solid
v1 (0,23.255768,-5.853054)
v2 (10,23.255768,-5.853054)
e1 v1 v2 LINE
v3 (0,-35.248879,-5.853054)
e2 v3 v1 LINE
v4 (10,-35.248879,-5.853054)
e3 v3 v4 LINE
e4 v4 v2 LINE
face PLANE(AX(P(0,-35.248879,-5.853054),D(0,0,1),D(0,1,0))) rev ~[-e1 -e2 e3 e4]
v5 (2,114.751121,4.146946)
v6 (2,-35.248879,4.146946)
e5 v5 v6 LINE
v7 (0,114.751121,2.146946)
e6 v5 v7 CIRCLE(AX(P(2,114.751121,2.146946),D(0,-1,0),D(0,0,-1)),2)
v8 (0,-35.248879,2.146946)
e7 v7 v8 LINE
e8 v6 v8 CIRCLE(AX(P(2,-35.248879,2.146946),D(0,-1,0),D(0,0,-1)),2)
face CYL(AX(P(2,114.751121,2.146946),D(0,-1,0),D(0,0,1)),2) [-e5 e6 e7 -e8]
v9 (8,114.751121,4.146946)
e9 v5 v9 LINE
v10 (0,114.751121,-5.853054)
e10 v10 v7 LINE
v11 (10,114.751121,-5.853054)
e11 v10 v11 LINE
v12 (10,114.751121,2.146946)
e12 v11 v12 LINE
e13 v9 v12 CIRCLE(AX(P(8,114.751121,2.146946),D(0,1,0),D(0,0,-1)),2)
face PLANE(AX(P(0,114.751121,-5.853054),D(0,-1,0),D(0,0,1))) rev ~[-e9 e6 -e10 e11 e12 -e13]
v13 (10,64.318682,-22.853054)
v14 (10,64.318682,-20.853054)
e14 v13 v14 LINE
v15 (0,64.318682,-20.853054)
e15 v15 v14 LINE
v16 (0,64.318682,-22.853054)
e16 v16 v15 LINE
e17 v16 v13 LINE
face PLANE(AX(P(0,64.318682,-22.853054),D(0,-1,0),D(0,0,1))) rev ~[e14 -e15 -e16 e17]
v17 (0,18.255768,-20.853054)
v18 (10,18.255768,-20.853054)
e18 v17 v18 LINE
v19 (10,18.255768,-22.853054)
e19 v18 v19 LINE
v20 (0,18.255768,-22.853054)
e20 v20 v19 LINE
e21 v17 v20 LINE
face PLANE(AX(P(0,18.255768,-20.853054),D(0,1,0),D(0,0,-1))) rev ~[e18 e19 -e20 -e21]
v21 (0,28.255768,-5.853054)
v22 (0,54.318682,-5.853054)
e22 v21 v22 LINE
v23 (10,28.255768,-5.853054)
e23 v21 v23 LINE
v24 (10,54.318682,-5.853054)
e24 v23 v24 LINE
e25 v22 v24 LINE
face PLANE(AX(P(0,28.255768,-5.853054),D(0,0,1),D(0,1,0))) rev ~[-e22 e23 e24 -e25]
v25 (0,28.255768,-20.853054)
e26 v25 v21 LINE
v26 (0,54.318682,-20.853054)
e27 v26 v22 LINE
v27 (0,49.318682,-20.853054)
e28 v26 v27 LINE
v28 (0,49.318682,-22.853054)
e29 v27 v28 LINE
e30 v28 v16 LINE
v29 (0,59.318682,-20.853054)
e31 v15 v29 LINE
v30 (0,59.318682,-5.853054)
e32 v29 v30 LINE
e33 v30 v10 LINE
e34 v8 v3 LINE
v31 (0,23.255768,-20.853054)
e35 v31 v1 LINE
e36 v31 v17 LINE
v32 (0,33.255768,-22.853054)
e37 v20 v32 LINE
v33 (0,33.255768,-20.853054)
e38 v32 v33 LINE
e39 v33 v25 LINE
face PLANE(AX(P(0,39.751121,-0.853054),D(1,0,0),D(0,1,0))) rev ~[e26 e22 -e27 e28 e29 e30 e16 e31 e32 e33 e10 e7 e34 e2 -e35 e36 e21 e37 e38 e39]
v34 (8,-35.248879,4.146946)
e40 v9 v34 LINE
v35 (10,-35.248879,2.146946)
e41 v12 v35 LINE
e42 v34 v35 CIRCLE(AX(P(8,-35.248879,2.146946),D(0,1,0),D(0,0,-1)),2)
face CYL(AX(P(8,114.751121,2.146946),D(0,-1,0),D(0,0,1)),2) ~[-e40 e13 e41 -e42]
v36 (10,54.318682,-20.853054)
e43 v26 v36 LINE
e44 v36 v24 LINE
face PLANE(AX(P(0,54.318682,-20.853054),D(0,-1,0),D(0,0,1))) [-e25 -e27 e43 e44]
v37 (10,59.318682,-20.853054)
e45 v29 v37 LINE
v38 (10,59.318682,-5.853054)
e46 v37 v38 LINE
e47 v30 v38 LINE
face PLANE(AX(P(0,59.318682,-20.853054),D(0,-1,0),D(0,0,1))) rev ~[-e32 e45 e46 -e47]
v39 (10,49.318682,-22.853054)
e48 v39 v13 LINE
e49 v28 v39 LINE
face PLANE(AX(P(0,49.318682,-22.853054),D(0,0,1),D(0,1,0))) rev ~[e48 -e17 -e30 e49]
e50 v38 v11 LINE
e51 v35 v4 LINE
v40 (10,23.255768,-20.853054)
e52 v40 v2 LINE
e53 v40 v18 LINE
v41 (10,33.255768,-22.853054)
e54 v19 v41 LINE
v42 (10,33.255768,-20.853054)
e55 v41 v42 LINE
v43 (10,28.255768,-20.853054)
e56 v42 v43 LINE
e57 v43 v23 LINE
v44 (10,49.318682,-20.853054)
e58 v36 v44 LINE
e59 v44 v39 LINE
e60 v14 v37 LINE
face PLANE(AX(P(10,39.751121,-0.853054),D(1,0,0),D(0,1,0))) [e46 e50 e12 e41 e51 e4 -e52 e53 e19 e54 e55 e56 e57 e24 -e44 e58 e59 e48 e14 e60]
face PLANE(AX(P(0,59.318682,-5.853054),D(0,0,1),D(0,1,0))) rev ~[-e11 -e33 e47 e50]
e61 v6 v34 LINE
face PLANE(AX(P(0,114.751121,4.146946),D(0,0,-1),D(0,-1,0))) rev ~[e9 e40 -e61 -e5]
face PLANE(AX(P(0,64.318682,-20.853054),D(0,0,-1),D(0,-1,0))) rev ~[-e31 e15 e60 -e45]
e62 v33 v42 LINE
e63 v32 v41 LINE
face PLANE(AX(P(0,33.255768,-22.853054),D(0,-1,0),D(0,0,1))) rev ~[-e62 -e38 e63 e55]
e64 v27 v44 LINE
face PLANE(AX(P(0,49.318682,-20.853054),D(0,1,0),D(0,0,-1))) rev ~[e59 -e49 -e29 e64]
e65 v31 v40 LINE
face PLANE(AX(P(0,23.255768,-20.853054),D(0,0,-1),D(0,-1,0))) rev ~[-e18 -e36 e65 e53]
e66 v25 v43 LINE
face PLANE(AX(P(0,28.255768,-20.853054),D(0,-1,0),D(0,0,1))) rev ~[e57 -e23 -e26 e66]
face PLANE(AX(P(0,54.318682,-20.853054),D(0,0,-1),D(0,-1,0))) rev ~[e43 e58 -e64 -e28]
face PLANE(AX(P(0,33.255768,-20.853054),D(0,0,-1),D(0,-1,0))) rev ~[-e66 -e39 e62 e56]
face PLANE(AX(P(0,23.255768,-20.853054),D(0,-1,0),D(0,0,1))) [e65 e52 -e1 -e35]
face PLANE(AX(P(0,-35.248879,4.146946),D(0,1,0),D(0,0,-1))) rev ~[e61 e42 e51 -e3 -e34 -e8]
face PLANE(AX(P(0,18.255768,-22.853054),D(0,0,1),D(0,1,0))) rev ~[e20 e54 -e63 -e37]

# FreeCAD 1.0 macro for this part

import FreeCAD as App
import Part
import Sketcher
from FreeCAD import Vector


def edges_at(feature, points):
    """Names of the edges that pass closest to the given points."""
    edges = feature.Shape.Edges
    near = lambda p: min(range(len(edges)), key=lambda i: edges[i].distToShape(Part.Vertex(*p))[0])
    return sorted({f"Edge{near(p) + 1}" for p in points})

doc = App.newDocument("Part")
body = doc.addObject("PartDesign::Body", "Body")

# Sketch on YZ plane
sketch1 = body.newObject("Sketcher::SketchObject", "Sketch")
sketch1.AttachmentSupport = (doc.getObject("YZ_Plane"), [""])
sketch1.MapMode = "FlatFace"
sketch1.addGeometry(Part.LineSegment(Vector(114.8, -5.9, 0), Vector(114.8, 4.1, 0)), False)
sketch1.addGeometry(Part.LineSegment(Vector(114.8, 4.1, 0), Vector(-35.2, 4.1, 0)), False)
sketch1.addGeometry(Part.LineSegment(Vector(-35.2, 4.1, 0), Vector(-35.2, -5.9, 0)), False)
sketch1.addGeometry(Part.LineSegment(Vector(-35.2, -5.9, 0), Vector(23.3, -5.9, 0)), False)
sketch1.addGeometry(Part.LineSegment(Vector(23.3, -5.9, 0), Vector(23.3, -20.9, 0)), False)
sketch1.addGeometry(Part.LineSegment(Vector(23.3, -20.9, 0), Vector(18.3, -20.9, 0)), False)
sketch1.addGeometry(Part.LineSegment(Vector(18.3, -20.9, 0), Vector(18.3, -22.9, 0)), False)
sketch1.addGeometry(Part.LineSegment(Vector(18.3, -22.9, 0), Vector(33.3, -22.9, 0)), False)
sketch1.addGeometry(Part.LineSegment(Vector(33.3, -22.9, 0), Vector(33.3, -20.9, 0)), False)
sketch1.addGeometry(Part.LineSegment(Vector(33.3, -20.9, 0), Vector(28.3, -20.9, 0)), False)
sketch1.addGeometry(Part.LineSegment(Vector(28.3, -20.9, 0), Vector(28.3, -5.9, 0)), False)
sketch1.addGeometry(Part.LineSegment(Vector(28.3, -5.9, 0), Vector(54.3, -5.9, 0)), False)
sketch1.addGeometry(Part.LineSegment(Vector(54.3, -5.9, 0), Vector(54.3, -20.9, 0)), False)
sketch1.addGeometry(Part.LineSegment(Vector(54.3, -20.9, 0), Vector(49.3, -20.9, 0)), False)
sketch1.addGeometry(Part.LineSegment(Vector(49.3, -20.9, 0), Vector(49.3, -22.9, 0)), False)
sketch1.addGeometry(Part.LineSegment(Vector(49.3, -22.9, 0), Vector(64.3, -22.9, 0)), False)
sketch1.addGeometry(Part.LineSegment(Vector(64.3, -22.9, 0), Vector(64.3, -20.9, 0)), False)
sketch1.addGeometry(Part.LineSegment(Vector(64.3, -20.9, 0), Vector(59.3, -20.9, 0)), False)
sketch1.addGeometry(Part.LineSegment(Vector(59.3, -20.9, 0), Vector(59.3, -5.9, 0)), False)
sketch1.addGeometry(Part.LineSegment(Vector(59.3, -5.9, 0), Vector(114.8, -5.9, 0)), False)
sketch1.addConstraint(Sketcher.Constraint("Coincident", 0, 2, 1, 1))
sketch1.addConstraint(Sketcher.Constraint("Coincident", 1, 2, 2, 1))
sketch1.addConstraint(Sketcher.Constraint("Coincident", 2, 2, 3, 1))
sketch1.addConstraint(Sketcher.Constraint("Coincident", 3, 2, 4, 1))
sketch1.addConstraint(Sketcher.Constraint("Coincident", 4, 2, 5, 1))
sketch1.addConstraint(Sketcher.Constraint("Coincident", 5, 2, 6, 1))
sketch1.addConstraint(Sketcher.Constraint("Coincident", 6, 2, 7, 1))
sketch1.addConstraint(Sketcher.Constraint("Coincident", 7, 2, 8, 1))
sketch1.addConstraint(Sketcher.Constraint("Coincident", 8, 2, 9, 1))
sketch1.addConstraint(Sketcher.Constraint("Coincident", 9, 2, 10, 1))
sketch1.addConstraint(Sketcher.Constraint("Coincident", 10, 2, 11, 1))
sketch1.addConstraint(Sketcher.Constraint("Coincident", 11, 2, 12, 1))
sketch1.addConstraint(Sketcher.Constraint("Coincident", 12, 2, 13, 1))
sketch1.addConstraint(Sketcher.Constraint("Coincident", 13, 2, 14, 1))
sketch1.addConstraint(Sketcher.Constraint("Coincident", 14, 2, 15, 1))
sketch1.addConstraint(Sketcher.Constraint("Coincident", 15, 2, 16, 1))
sketch1.addConstraint(Sketcher.Constraint("Coincident", 16, 2, 17, 1))
sketch1.addConstraint(Sketcher.Constraint("Coincident", 17, 2, 18, 1))
sketch1.addConstraint(Sketcher.Constraint("Coincident", 18, 2, 19, 1))
sketch1.addConstraint(Sketcher.Constraint("Coincident", 19, 2, 0, 1))
sketch1.addConstraint(Sketcher.Constraint("Vertical", 0))
sketch1.addConstraint(Sketcher.Constraint("Horizontal", 1))
sketch1.addConstraint(Sketcher.Constraint("Vertical", 2))
sketch1.addConstraint(Sketcher.Constraint("Horizontal", 3))
sketch1.addConstraint(Sketcher.Constraint("Vertical", 4))
sketch1.addConstraint(Sketcher.Constraint("Horizontal", 5))
sketch1.addConstraint(Sketcher.Constraint("Vertical", 6))
sketch1.addConstraint(Sketcher.Constraint("Horizontal", 7))
sketch1.addConstraint(Sketcher.Constraint("Vertical", 8))
sketch1.addConstraint(Sketcher.Constraint("Horizontal", 9))
sketch1.addConstraint(Sketcher.Constraint("Vertical", 10))
sketch1.addConstraint(Sketcher.Constraint("Horizontal", 11))
sketch1.addConstraint(Sketcher.Constraint("Vertical", 12))
sketch1.addConstraint(Sketcher.Constraint("Horizontal", 13))
sketch1.addConstraint(Sketcher.Constraint("Vertical", 14))
sketch1.addConstraint(Sketcher.Constraint("Horizontal", 15))
sketch1.addConstraint(Sketcher.Constraint("Vertical", 16))
sketch1.addConstraint(Sketcher.Constraint("Horizontal", 17))
sketch1.addConstraint(Sketcher.Constraint("Vertical", 18))
sketch1.addConstraint(Sketcher.Constraint("Horizontal", 19))
sketch1.addConstraint(Sketcher.Constraint("Horizontal", 5, 2, 8, 2))
sketch1.addConstraint(Sketcher.Constraint("Horizontal", 3, 2, 10, 2))
sketch1.addConstraint(Sketcher.Constraint("Horizontal", 9, 2, 12, 2))
sketch1.addConstraint(Sketcher.Constraint("Horizontal", 7, 2, 14, 2))
sketch1.addConstraint(Sketcher.Constraint("Horizontal", 13, 2, 16, 2))
sketch1.addConstraint(Sketcher.Constraint("Horizontal", 11, 2, 18, 2))
sketch1.addConstraint(Sketcher.Constraint("Equal", 5, 9))
sketch1.addConstraint(Sketcher.Constraint("Equal", 9, 13))
sketch1.addConstraint(Sketcher.Constraint("Equal", 7, 15))
sketch1.addConstraint(Sketcher.Constraint("Equal", 13, 17))
sketch1.addConstraint(Sketcher.Constraint("Equal", 15, 4))
sketch1.addConstraint(Sketcher.Constraint("DistanceX", 1, 2, 1, 1, 150.0))
sketch1.addConstraint(Sketcher.Constraint("DistanceX", 5, 2, 5, 1, 5.0))
sketch1.addConstraint(Sketcher.Constraint("DistanceX", 7, 1, 7, 2, 15.0))
sketch1.addConstraint(Sketcher.Constraint("DistanceY", 0, 1, 0, 2, 10.0))
sketch1.addConstraint(Sketcher.Constraint("DistanceY", 6, 2, 6, 1, 2.0))
sketch1.addConstraint(Sketcher.Constraint("DistanceX", 19, 1, 19, 2, 55.432439))
sketch1.addConstraint(Sketcher.Constraint("DistanceX", 3, 1, 3, 2, 58.504647))
sketch1.addConstraint(Sketcher.Constraint("DistanceX", -1, 1, 0, 2, 114.751121))
sketch1.addConstraint(Sketcher.Constraint("DistanceY", -1, 1, 0, 2, 4.146946))
pad1 = body.newObject("PartDesign::Pad", "Pad")
pad1.Profile = sketch1
pad1.Length = 10
doc.recompute()

fillet = body.newObject("PartDesign::Fillet", "Fillet")
fillet.Base = (pad1, edges_at(pad1, [(10, 39.751, 4.147), (0, 39.751, 4.147)]))
fillet.Radius = 2

doc.recompute()
